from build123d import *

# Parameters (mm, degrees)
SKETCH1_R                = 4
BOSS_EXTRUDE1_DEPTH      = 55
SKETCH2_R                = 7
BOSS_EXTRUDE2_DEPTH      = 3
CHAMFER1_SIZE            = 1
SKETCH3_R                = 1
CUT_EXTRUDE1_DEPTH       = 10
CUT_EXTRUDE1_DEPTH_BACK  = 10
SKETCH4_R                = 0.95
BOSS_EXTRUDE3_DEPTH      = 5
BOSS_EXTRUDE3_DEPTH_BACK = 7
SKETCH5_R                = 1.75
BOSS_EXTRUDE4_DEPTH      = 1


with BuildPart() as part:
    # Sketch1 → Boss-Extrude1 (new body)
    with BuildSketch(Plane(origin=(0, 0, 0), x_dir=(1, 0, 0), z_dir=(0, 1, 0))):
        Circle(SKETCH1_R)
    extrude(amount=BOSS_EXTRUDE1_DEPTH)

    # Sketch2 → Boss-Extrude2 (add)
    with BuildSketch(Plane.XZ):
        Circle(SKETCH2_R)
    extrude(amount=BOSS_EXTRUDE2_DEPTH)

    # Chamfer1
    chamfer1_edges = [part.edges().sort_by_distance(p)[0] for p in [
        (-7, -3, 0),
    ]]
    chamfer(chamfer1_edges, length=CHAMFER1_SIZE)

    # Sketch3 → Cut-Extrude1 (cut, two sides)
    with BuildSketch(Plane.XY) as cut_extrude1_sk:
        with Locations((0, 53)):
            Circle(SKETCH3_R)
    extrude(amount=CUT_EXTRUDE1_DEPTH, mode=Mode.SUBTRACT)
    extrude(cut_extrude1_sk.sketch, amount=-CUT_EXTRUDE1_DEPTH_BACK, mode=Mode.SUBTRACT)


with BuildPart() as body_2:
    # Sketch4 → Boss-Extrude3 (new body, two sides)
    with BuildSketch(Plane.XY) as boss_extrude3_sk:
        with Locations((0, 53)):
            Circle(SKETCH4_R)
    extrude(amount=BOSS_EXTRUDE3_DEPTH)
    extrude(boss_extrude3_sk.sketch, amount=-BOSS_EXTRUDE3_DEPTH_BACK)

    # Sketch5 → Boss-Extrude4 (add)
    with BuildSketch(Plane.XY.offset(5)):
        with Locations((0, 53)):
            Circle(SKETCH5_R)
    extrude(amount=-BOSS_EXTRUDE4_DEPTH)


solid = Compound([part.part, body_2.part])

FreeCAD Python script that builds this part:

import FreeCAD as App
import Part
import Sketcher

V = App.Vector
Q = App.Units.Quantity


def edges_at(feature, points):
    """Names of the edges that pass closest to the given points."""
    edges = feature.Shape.Edges
    near = lambda p: min(range(len(edges)), key=lambda i: edges[i].distToShape(Part.Vertex(*p))[0])
    return sorted({f"Edge{near(p) + 1}" for p in points})

doc = App.newDocument("Part")
body = doc.addObject("PartDesign::Body", "Body")

# Sketch on XZ plane
sketch1 = body.newObject("Sketcher::SketchObject", "Sketch")
sketch1.AttachmentSupport = (doc.getObject("XZ_Plane"), [""])
sketch1.MapMode = "FlatFace"
sketch1.addGeometry(Part.Circle(V(0, 0, 0), V(0, 0, 1), 4), False)
sketch1.addConstraint([
    Sketcher.Constraint("Coincident", 0, 3, -1, 1),
    Sketcher.Constraint("Diameter", 0, Q("8 mm")),
])
pad1 = body.newObject("PartDesign::Pad", "Pad")
pad1.Profile = sketch1
pad1.Length = 55
pad1.Reversed = True

# Sketch on XZ plane
sketch2 = body.newObject("Sketcher::SketchObject", "Sketch001")
sketch2.AttachmentSupport = (doc.getObject("XZ_Plane"), [""])
sketch2.MapMode = "FlatFace"
sketch2.addGeometry(Part.Circle(V(0, 0, 0), V(0, 0, 1), 7), False)
sketch2.addConstraint([
    Sketcher.Constraint("Coincident", 0, 3, -1, 1),
    Sketcher.Constraint("Diameter", 0, Q("14 mm")),
])
pad2 = body.newObject("PartDesign::Pad", "Pad001")
pad2.Profile = sketch2
pad2.Length = 3
doc.recompute()

chamfer = body.newObject("PartDesign::Chamfer", "Chamfer")
chamfer.Base = (pad2, edges_at(pad2, [(-7, -3, 0)]))
chamfer.Size = 1

# Sketch on XY plane
sketch3 = body.newObject("Sketcher::SketchObject", "Sketch002")
sketch3.AttachmentSupport = (doc.getObject("XY_Plane"), [""])
sketch3.MapMode = "FlatFace"
sketch3.addGeometry(Part.Circle(V(0, 53, 0), V(0, 0, 1), 1), False)
sketch3.addConstraint([
    Sketcher.Constraint("PointOnObject", 0, 3, -2),
    Sketcher.Constraint("Diameter", 0, Q("2 mm")),
    Sketcher.Constraint("DistanceY", -1, 1, 0, 3, Q("53 mm")),
])
pocket1 = body.newObject("PartDesign::Pocket", "Pocket")
pocket1.Profile = sketch3
pocket1.Type = "ThroughAll"
pocket1.Midplane = True
body2 = doc.addObject("PartDesign::Body", "Body001")

# Sketch on XY plane
sketch4 = body2.newObject("Sketcher::SketchObject", "Sketch003")
sketch4.AttachmentSupport = (doc.getObject("XY_Plane001"), [""])
sketch4.MapMode = "FlatFace"
sketch4.addGeometry(Part.Circle(V(0, 53, 0), V(0, 0, 1), 0.95), False)
sketch4.addConstraint([
    Sketcher.Constraint("PointOnObject", 0, 3, -2),
    Sketcher.Constraint("Diameter", 0, Q("1.9 mm")),
    Sketcher.Constraint("DistanceY", -1, 1, 0, 3, Q("53 mm")),
])
pad3 = body2.newObject("PartDesign::Pad", "Pad002")
pad3.Profile = sketch4
pad3.Type = "TwoLengths"
pad3.Length = 5
pad3.Length2 = 7

# Sketch on XY plane
sketch5 = body2.newObject("Sketcher::SketchObject", "Sketch004")
sketch5.AttachmentSupport = (doc.getObject("XY_Plane001"), [""])
sketch5.MapMode = "FlatFace"
sketch5.AttachmentOffset = App.Placement(V(0, 0, 5), App.Rotation())
sketch5.addGeometry(Part.Circle(V(0, 53, 0), V(0, 0, 1), 1.75), False)
sketch5.addConstraint([
    Sketcher.Constraint("PointOnObject", 0, 3, -2),
    Sketcher.Constraint("Diameter", 0, Q("3.5 mm")),
    Sketcher.Constraint("DistanceY", -1, 1, 0, 3, Q("53 mm")),
])
pad4 = body2.newObject("PartDesign::Pad", "Pad003")
pad4.Profile = sketch5
pad4.Length = 1
pad4.Reversed = True

doc.recompute()
